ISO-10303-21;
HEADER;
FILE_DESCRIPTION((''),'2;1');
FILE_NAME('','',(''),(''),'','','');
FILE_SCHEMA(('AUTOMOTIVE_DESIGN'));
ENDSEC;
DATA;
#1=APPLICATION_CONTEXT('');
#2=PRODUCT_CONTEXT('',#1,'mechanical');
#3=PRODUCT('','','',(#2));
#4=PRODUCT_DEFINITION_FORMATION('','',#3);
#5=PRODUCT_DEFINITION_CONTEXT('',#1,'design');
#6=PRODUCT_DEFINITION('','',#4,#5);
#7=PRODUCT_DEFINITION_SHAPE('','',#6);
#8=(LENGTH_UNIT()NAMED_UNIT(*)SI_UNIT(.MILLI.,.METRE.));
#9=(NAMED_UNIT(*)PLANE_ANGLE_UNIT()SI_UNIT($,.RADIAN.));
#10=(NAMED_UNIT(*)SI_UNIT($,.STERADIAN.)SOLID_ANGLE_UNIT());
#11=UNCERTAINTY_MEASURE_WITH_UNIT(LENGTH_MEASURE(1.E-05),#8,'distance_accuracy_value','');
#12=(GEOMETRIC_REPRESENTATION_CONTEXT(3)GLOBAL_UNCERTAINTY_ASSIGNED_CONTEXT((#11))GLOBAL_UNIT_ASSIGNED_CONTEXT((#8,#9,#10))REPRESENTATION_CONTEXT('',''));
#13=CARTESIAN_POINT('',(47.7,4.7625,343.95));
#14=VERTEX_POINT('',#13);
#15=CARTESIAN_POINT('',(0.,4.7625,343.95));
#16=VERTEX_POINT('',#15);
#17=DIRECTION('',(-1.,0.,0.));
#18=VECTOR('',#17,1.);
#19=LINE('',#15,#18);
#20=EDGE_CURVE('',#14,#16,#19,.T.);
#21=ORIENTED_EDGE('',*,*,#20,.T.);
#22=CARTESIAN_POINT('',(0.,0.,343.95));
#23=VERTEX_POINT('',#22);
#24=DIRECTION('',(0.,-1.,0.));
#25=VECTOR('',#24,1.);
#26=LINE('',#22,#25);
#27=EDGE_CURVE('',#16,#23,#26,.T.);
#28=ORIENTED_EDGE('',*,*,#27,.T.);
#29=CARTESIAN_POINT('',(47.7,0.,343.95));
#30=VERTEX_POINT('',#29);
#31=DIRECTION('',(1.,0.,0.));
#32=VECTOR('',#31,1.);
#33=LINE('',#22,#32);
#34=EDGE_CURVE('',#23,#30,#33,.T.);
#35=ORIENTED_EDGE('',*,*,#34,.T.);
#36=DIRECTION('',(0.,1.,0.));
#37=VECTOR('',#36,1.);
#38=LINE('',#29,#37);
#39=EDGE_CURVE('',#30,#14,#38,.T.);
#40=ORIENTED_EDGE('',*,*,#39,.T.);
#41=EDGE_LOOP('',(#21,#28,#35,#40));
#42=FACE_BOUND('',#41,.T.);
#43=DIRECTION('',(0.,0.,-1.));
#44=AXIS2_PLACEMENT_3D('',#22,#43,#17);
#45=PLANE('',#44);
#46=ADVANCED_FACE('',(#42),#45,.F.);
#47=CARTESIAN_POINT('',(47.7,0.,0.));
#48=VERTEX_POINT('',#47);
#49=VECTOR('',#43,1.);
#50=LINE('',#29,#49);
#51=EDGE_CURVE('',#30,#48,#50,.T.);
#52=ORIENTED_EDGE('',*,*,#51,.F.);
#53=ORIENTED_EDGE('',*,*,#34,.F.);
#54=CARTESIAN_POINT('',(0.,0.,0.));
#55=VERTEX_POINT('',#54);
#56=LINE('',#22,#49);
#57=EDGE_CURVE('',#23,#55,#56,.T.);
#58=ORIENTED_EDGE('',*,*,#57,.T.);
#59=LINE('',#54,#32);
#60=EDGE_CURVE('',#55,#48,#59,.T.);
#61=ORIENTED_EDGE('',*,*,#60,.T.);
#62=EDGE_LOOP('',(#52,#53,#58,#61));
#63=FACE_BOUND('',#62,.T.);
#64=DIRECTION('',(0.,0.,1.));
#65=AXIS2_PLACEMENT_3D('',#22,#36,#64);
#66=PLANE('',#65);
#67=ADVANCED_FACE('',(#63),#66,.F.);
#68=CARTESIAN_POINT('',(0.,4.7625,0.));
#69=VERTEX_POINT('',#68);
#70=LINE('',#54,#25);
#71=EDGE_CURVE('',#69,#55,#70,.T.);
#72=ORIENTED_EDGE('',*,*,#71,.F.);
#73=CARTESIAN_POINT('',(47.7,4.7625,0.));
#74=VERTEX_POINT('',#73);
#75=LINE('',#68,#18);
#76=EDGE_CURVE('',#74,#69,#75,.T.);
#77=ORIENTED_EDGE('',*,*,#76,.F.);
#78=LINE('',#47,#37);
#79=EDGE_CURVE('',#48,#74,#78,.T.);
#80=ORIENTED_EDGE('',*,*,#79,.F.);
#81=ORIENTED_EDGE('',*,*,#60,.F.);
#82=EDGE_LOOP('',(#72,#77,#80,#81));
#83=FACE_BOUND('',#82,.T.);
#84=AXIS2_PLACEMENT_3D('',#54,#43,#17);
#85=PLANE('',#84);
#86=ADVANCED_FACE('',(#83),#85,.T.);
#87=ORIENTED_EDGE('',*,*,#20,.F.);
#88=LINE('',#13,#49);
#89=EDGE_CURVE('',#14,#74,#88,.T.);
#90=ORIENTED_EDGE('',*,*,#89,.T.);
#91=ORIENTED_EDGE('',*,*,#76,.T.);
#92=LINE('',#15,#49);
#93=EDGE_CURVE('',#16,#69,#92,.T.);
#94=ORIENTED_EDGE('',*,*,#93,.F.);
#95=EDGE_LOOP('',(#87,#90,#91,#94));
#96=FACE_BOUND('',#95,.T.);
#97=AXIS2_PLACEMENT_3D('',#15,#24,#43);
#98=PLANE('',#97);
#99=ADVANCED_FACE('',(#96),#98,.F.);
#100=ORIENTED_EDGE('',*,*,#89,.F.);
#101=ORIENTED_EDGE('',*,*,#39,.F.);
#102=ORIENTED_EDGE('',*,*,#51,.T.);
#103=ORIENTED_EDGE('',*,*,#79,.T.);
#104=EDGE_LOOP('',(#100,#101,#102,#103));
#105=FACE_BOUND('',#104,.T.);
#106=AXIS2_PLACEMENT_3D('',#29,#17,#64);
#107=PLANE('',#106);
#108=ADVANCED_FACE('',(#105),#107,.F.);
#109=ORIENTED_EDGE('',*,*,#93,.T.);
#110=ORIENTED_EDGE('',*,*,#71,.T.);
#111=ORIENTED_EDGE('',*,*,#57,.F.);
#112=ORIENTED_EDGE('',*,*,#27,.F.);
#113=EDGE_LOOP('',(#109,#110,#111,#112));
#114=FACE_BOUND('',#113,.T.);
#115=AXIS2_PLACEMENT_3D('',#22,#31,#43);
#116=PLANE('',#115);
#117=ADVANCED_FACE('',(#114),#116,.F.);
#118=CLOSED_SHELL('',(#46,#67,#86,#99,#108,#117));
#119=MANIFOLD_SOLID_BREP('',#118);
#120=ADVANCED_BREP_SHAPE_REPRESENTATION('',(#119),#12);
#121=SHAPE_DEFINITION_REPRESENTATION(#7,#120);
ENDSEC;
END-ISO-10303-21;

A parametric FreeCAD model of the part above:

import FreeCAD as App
import Part
import Sketcher
Q = App.Units.Quantity


def add_polygon(sketch, points):
    """Adds a closed chain of lines whose ends are joined by coincident constraints."""
    first, n = sketch.GeometryCount, len(points)
    for a, b in zip(points, points[1:] + points[:1]):
        sketch.addGeometry(Part.LineSegment(App.Vector(*a, 0), App.Vector(*b, 0)), False)
    for i in range(n):
        sketch.addConstraint(Sketcher.Constraint("Coincident", first + i, 2, first + (i + 1) % n, 1))

doc = App.newDocument("Part")
params = doc.addObject("Spreadsheet::Sheet", "Params")
for row, (alias, value) in enumerate([
    ("sketch1_width", "47.7 mm"),
    ("pad1_length", "343.95 mm"),
], start=1):
    params.set(f"A{row}", alias)
    params.set(f"B{row}", "=" + value)
    params.setAlias(f"B{row}", alias)

body = doc.addObject("PartDesign::Body", "Body")

# Sketch on XY plane
sketch1 = body.newObject("Sketcher::SketchObject", "Sketch")
sketch1.AttachmentSupport = (doc.getObject("XY_Plane"), [""])
sketch1.MapMode = "FlatFace"
add_polygon(sketch1, [(0, 4.8), (0, 0), (47.7, 0), (47.7, 4.8)])  # lines 0-3
sketch1.addConstraint([
    Sketcher.Constraint("Vertical", 0),
    Sketcher.Constraint("Horizontal", 1),
    Sketcher.Constraint("Vertical", 2),
    Sketcher.Constraint("Horizontal", 3),
    Sketcher.Constraint("Coincident", 0, 2, -1, 1),
    Sketcher.Constraint("DistanceX", 1, 1, 1, 2, Q("47.7 mm")),
    Sketcher.Constraint("DistanceY", 0, 2, 0, 1, Q("4.7625 mm")),
])
sketch1.setExpression("Constraints[9]", "Params.sketch1_width")
pad1 = body.newObject("PartDesign::Pad", "Pad")
pad1.Profile = sketch1
pad1.setExpression("Length", "Params.pad1_length")

doc.recompute()
